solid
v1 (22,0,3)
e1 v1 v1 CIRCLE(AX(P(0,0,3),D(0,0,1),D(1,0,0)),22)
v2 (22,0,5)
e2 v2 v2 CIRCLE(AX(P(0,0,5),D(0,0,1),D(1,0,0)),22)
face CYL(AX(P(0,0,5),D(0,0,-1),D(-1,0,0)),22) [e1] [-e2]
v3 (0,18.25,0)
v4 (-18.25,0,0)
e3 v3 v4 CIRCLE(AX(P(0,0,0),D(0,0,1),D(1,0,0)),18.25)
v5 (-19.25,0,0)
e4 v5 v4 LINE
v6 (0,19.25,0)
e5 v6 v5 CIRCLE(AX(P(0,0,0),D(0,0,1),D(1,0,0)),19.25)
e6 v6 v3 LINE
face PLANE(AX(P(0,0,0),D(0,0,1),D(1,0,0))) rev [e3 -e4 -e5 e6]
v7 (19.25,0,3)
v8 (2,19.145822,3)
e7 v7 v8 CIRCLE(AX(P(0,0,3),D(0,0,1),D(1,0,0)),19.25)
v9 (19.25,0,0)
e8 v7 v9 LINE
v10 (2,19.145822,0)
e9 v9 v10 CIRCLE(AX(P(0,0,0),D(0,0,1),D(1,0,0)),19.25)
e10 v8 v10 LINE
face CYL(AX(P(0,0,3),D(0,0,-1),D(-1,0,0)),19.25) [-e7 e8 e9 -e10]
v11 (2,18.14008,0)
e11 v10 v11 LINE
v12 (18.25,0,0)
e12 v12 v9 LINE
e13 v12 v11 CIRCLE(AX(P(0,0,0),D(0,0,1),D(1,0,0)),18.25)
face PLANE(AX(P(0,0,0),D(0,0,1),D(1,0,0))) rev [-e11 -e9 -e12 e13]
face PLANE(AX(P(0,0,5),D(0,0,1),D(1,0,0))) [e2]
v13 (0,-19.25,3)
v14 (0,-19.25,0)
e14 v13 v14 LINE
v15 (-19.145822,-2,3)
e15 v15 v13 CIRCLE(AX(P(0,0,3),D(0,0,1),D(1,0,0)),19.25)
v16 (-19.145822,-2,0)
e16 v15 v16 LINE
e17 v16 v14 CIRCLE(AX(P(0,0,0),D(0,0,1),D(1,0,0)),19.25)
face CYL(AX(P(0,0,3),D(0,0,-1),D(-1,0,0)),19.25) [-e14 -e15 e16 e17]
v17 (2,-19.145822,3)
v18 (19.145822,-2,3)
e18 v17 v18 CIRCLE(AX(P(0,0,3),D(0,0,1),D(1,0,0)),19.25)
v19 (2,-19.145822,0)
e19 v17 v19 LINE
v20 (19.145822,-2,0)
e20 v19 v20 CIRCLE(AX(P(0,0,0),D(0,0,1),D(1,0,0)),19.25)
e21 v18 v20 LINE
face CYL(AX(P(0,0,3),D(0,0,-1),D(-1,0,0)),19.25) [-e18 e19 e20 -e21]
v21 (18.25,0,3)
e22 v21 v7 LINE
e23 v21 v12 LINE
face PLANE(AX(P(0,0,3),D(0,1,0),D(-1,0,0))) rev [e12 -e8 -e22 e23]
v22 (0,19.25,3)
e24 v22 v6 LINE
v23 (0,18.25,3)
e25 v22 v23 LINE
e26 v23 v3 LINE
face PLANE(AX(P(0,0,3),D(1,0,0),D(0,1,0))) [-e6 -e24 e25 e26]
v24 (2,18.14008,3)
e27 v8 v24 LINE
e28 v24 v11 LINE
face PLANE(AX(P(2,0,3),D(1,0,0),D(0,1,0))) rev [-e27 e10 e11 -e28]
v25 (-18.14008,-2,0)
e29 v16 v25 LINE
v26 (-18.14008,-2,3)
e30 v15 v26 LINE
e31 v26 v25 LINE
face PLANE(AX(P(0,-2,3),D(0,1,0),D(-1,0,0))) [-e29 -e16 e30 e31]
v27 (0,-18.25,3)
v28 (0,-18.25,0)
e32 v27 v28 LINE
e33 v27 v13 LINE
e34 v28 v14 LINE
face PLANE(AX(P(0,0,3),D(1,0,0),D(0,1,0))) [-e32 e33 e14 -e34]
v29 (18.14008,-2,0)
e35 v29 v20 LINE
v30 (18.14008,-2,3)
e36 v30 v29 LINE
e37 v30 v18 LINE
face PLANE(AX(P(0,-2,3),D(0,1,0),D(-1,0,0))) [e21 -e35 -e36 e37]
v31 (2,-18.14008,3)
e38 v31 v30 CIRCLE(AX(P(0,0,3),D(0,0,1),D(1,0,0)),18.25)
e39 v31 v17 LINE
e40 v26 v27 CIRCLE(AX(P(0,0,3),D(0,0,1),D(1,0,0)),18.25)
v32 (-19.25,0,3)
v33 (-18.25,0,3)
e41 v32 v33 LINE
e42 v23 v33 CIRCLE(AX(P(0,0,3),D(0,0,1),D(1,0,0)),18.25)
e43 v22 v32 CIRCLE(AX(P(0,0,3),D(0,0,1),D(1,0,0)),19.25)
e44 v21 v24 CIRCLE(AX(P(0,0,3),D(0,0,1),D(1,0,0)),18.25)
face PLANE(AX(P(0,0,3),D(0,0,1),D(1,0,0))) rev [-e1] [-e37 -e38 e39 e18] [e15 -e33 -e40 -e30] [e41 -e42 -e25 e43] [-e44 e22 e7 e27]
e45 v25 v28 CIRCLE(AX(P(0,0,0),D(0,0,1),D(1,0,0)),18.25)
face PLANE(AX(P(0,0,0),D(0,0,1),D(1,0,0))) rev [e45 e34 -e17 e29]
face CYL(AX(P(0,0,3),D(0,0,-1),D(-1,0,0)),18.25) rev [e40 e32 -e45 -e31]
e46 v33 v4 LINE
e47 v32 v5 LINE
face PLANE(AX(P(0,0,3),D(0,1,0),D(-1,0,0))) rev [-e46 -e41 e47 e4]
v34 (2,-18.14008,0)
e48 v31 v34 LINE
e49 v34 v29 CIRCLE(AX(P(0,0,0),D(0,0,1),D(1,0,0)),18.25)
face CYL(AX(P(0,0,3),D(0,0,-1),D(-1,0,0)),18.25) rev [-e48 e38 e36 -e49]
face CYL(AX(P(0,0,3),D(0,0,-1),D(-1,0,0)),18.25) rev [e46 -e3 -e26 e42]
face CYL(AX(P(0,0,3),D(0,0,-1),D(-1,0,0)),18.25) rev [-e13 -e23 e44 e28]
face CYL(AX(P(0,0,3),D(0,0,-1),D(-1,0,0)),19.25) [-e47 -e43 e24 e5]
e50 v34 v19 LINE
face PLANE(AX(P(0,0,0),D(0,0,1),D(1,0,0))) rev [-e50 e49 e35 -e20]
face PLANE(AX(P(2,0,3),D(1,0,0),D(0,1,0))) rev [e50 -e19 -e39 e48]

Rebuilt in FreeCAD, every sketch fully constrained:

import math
import FreeCAD as App
import Part
import Sketcher

V = App.Vector
Q = App.Units.Quantity

doc = App.newDocument("Part")
body = doc.addObject("PartDesign::Body", "Body")

# Sketch on XY plane
sketch1 = body.newObject("Sketcher::SketchObject", "Sketch")
sketch1.AttachmentSupport = (doc.getObject("XY_Plane"), [""])
sketch1.MapMode = "FlatFace"
sketch1.addGeometry(Part.Circle(V(0, 0, 0), V(0, 0, 1), 19), False)
sketch1.addGeometry(Part.Circle(V(0, 0, 0), V(0, 0, 1), 18), False)
sketch1.addConstraint(Sketcher.Constraint("Coincident", 0, 3, -1, 1))
sketch1.addConstraint(Sketcher.Constraint("Coincident", 1, 3, -1, 1))
sketch1.addConstraint(Sketcher.Constraint("Diameter", 0, Q("38.5 mm")))
sketch1.addConstraint(Sketcher.Constraint("Diameter", 1, Q("36.5 mm")))
pad1 = body.newObject("PartDesign::Pad", "Pad")
pad1.Profile = sketch1
pad1.Length = 3

# Sketch on XY plane
sketch2 = body.newObject("Sketcher::SketchObject", "Sketch001")
sketch2.AttachmentSupport = (doc.getObject("XY_Plane"), [""])
sketch2.MapMode = "FlatFace"
sketch2.AttachmentOffset = App.Placement(V(0, 0, 3), App.Rotation())
sketch2.addGeometry(Part.Circle(V(0, 0, 0), V(0, 0, 1), 22), False)
sketch2.addConstraint(Sketcher.Constraint("Coincident", 0, 3, -1, 1))
sketch2.addConstraint(Sketcher.Constraint("Diameter", 0, Q("44 mm")))
pad2 = body.newObject("PartDesign::Pad", "Pad001")
pad2.Profile = sketch2
pad2.Length = 2

# Sketch on XY plane
sketch3 = body.newObject("Sketcher::SketchObject", "Sketch002")
sketch3.AttachmentSupport = (doc.getObject("XY_Plane"), [""])
sketch3.MapMode = "FlatFace"
sketch3.addGeometry(Part.LineSegment(V(0, 18.2, 0), V(0, 19.2, 0)), False)
sketch3.addGeometry(Part.ArcOfCircle(Part.Circle(V(0, 0, 0), V(0, 0, 1), 19.3), math.radians(84.04), math.radians(90)), False)
sketch3.addGeometry(Part.LineSegment(V(2, 19.1, 0), V(2, 18.1, 0)), False)
sketch3.addGeometry(Part.ArcOfCircle(Part.Circle(V(0, 0, 0), V(0, 0, 1), 18.3), math.radians(83.71), math.radians(90)), False)
sketch3.addGeometry(Part.LineSegment(V(18.2, 0, 0), V(19.2, 0, 0)), False)
sketch3.addGeometry(Part.ArcOfCircle(Part.Circle(V(0, 0, 0), V(0, 0, 1), 19.3), math.radians(-5.96), math.radians(0)), False)
sketch3.addGeometry(Part.LineSegment(V(19.1, -2, 0), V(18.1, -2, 0)), False)
sketch3.addGeometry(Part.ArcOfCircle(Part.Circle(V(0, 0, 0), V(0, 0, 1), 18.3), math.radians(-6.29), math.radians(0)), False)
sketch3.addGeometry(Part.ArcOfCircle(Part.Circle(V(0, 0, 0), V(0, 0, 1), 19.3), math.radians(-90), math.radians(-84.04)), False)
sketch3.addGeometry(Part.LineSegment(V(0, -19.2, 0), V(0, -18.2, 0)), False)
sketch3.addGeometry(Part.ArcOfCircle(Part.Circle(V(0, 0, 0), V(0, 0, 1), 18.3), math.radians(-90), math.radians(-83.71)), False)
sketch3.addGeometry(Part.LineSegment(V(2, -18.1, 0), V(2, -19.1, 0)), False)
sketch3.addGeometry(Part.ArcOfCircle(Part.Circle(V(0, 0, 0), V(0, 0, 1), 19.3), math.radians(-180), math.radians(-174.04)), False)
sketch3.addGeometry(Part.LineSegment(V(-19.2, 0, 0), V(-18.2, 0, 0)), False)
sketch3.addGeometry(Part.ArcOfCircle(Part.Circle(V(0, 0, 0), V(0, 0, 1), 18.3), math.radians(-180), math.radians(-173.71)), False)
sketch3.addGeometry(Part.LineSegment(V(-18.1, -2, 0), V(-19.1, -2, 0)), False)
sketch3.addConstraint(Sketcher.Constraint("Coincident", 0, 2, 1, 2))
sketch3.addConstraint(Sketcher.Constraint("Coincident", 1, 1, 2, 1))
sketch3.addConstraint(Sketcher.Constraint("Coincident", 2, 2, 3, 1))
sketch3.addConstraint(Sketcher.Constraint("Coincident", 3, 2, 0, 1))
sketch3.addConstraint(Sketcher.Constraint("Coincident", 4, 2, 5, 2))
sketch3.addConstraint(Sketcher.Constraint("Coincident", 5, 1, 6, 1))
sketch3.addConstraint(Sketcher.Constraint("Coincident", 6, 2, 7, 1))
sketch3.addConstraint(Sketcher.Constraint("Coincident", 7, 2, 4, 1))
sketch3.addConstraint(Sketcher.Constraint("Coincident", 8, 1, 9, 1))
sketch3.addConstraint(Sketcher.Constraint("Coincident", 9, 2, 10, 1))
sketch3.addConstraint(Sketcher.Constraint("Coincident", 10, 2, 11, 1))
sketch3.addConstraint(Sketcher.Constraint("Coincident", 11, 2, 8, 2))
sketch3.addConstraint(Sketcher.Constraint("Coincident", 12, 1, 13, 1))
sketch3.addConstraint(Sketcher.Constraint("Coincident", 13, 2, 14, 1))
sketch3.addConstraint(Sketcher.Constraint("Coincident", 14, 2, 15, 1))
sketch3.addConstraint(Sketcher.Constraint("Coincident", 15, 2, 12, 2))
sketch3.addConstraint(Sketcher.Constraint("Vertical", 0))
sketch3.addConstraint(Sketcher.Constraint("Vertical", 2))
sketch3.addConstraint(Sketcher.Constraint("Horizontal", 4))
sketch3.addConstraint(Sketcher.Constraint("Horizontal", 6))
sketch3.addConstraint(Sketcher.Constraint("Vertical", 9))
sketch3.addConstraint(Sketcher.Constraint("Vertical", 11))
sketch3.addConstraint(Sketcher.Constraint("Horizontal", 13))
sketch3.addConstraint(Sketcher.Constraint("Horizontal", 15))
sketch3.addConstraint(Sketcher.Constraint("Coincident", 1, 3, -1, 1))
sketch3.addConstraint(Sketcher.Constraint("Coincident", 3, 3, -1, 1))
sketch3.addConstraint(Sketcher.Constraint("Coincident", 5, 3, -1, 1))
sketch3.addConstraint(Sketcher.Constraint("Coincident", 7, 3, -1, 1))
sketch3.addConstraint(Sketcher.Constraint("Coincident", 8, 3, -1, 1))
sketch3.addConstraint(Sketcher.Constraint("Coincident", 10, 3, -1, 1))
sketch3.addConstraint(Sketcher.Constraint("Coincident", 12, 3, -1, 1))
sketch3.addConstraint(Sketcher.Constraint("Coincident", 14, 3, -1, 1))
sketch3.addConstraint(Sketcher.Constraint("Equal", 1, 5))
sketch3.addConstraint(Sketcher.Constraint("Equal", 3, 7))
sketch3.addConstraint(Sketcher.Constraint("Equal", 5, 8))
sketch3.addConstraint(Sketcher.Constraint("Equal", 7, 10))
sketch3.addConstraint(Sketcher.Constraint("Equal", 8, 12))
sketch3.addConstraint(Sketcher.Constraint("Equal", 10, 14))
sketch3.addConstraint(Sketcher.Constraint("PointOnObject", 0, 2, -2))
sketch3.addConstraint(Sketcher.Constraint("PointOnObject", 4, 2, -1))
sketch3.addConstraint(Sketcher.Constraint("PointOnObject", 8, 1, -2))
sketch3.addConstraint(Sketcher.Constraint("PointOnObject", 12, 1, -1))
sketch3.addConstraint(Sketcher.Constraint("Horizontal", 6, 2, 14, 2))
sketch3.addConstraint(Sketcher.Constraint("Vertical", 2, 2, 10, 2))
sketch3.addConstraint(Sketcher.Constraint("Equal", 15, 2))
sketch3.addConstraint(Sketcher.Constraint("DistanceX", 4, 1, 4, 2, Q("1 mm")))
sketch3.addConstraint(Sketcher.Constraint("Radius", 1, Q("19.25 mm")))
sketch3.addConstraint(Sketcher.Constraint("DistanceX", -1, 1, 1, 1, Q("2 mm")))
pocket1 = body.newObject("PartDesign::Pocket", "Pocket")
pocket1.Profile = sketch3
pocket1.Length = 3
pocket1.Reversed = True

doc.recompute()
